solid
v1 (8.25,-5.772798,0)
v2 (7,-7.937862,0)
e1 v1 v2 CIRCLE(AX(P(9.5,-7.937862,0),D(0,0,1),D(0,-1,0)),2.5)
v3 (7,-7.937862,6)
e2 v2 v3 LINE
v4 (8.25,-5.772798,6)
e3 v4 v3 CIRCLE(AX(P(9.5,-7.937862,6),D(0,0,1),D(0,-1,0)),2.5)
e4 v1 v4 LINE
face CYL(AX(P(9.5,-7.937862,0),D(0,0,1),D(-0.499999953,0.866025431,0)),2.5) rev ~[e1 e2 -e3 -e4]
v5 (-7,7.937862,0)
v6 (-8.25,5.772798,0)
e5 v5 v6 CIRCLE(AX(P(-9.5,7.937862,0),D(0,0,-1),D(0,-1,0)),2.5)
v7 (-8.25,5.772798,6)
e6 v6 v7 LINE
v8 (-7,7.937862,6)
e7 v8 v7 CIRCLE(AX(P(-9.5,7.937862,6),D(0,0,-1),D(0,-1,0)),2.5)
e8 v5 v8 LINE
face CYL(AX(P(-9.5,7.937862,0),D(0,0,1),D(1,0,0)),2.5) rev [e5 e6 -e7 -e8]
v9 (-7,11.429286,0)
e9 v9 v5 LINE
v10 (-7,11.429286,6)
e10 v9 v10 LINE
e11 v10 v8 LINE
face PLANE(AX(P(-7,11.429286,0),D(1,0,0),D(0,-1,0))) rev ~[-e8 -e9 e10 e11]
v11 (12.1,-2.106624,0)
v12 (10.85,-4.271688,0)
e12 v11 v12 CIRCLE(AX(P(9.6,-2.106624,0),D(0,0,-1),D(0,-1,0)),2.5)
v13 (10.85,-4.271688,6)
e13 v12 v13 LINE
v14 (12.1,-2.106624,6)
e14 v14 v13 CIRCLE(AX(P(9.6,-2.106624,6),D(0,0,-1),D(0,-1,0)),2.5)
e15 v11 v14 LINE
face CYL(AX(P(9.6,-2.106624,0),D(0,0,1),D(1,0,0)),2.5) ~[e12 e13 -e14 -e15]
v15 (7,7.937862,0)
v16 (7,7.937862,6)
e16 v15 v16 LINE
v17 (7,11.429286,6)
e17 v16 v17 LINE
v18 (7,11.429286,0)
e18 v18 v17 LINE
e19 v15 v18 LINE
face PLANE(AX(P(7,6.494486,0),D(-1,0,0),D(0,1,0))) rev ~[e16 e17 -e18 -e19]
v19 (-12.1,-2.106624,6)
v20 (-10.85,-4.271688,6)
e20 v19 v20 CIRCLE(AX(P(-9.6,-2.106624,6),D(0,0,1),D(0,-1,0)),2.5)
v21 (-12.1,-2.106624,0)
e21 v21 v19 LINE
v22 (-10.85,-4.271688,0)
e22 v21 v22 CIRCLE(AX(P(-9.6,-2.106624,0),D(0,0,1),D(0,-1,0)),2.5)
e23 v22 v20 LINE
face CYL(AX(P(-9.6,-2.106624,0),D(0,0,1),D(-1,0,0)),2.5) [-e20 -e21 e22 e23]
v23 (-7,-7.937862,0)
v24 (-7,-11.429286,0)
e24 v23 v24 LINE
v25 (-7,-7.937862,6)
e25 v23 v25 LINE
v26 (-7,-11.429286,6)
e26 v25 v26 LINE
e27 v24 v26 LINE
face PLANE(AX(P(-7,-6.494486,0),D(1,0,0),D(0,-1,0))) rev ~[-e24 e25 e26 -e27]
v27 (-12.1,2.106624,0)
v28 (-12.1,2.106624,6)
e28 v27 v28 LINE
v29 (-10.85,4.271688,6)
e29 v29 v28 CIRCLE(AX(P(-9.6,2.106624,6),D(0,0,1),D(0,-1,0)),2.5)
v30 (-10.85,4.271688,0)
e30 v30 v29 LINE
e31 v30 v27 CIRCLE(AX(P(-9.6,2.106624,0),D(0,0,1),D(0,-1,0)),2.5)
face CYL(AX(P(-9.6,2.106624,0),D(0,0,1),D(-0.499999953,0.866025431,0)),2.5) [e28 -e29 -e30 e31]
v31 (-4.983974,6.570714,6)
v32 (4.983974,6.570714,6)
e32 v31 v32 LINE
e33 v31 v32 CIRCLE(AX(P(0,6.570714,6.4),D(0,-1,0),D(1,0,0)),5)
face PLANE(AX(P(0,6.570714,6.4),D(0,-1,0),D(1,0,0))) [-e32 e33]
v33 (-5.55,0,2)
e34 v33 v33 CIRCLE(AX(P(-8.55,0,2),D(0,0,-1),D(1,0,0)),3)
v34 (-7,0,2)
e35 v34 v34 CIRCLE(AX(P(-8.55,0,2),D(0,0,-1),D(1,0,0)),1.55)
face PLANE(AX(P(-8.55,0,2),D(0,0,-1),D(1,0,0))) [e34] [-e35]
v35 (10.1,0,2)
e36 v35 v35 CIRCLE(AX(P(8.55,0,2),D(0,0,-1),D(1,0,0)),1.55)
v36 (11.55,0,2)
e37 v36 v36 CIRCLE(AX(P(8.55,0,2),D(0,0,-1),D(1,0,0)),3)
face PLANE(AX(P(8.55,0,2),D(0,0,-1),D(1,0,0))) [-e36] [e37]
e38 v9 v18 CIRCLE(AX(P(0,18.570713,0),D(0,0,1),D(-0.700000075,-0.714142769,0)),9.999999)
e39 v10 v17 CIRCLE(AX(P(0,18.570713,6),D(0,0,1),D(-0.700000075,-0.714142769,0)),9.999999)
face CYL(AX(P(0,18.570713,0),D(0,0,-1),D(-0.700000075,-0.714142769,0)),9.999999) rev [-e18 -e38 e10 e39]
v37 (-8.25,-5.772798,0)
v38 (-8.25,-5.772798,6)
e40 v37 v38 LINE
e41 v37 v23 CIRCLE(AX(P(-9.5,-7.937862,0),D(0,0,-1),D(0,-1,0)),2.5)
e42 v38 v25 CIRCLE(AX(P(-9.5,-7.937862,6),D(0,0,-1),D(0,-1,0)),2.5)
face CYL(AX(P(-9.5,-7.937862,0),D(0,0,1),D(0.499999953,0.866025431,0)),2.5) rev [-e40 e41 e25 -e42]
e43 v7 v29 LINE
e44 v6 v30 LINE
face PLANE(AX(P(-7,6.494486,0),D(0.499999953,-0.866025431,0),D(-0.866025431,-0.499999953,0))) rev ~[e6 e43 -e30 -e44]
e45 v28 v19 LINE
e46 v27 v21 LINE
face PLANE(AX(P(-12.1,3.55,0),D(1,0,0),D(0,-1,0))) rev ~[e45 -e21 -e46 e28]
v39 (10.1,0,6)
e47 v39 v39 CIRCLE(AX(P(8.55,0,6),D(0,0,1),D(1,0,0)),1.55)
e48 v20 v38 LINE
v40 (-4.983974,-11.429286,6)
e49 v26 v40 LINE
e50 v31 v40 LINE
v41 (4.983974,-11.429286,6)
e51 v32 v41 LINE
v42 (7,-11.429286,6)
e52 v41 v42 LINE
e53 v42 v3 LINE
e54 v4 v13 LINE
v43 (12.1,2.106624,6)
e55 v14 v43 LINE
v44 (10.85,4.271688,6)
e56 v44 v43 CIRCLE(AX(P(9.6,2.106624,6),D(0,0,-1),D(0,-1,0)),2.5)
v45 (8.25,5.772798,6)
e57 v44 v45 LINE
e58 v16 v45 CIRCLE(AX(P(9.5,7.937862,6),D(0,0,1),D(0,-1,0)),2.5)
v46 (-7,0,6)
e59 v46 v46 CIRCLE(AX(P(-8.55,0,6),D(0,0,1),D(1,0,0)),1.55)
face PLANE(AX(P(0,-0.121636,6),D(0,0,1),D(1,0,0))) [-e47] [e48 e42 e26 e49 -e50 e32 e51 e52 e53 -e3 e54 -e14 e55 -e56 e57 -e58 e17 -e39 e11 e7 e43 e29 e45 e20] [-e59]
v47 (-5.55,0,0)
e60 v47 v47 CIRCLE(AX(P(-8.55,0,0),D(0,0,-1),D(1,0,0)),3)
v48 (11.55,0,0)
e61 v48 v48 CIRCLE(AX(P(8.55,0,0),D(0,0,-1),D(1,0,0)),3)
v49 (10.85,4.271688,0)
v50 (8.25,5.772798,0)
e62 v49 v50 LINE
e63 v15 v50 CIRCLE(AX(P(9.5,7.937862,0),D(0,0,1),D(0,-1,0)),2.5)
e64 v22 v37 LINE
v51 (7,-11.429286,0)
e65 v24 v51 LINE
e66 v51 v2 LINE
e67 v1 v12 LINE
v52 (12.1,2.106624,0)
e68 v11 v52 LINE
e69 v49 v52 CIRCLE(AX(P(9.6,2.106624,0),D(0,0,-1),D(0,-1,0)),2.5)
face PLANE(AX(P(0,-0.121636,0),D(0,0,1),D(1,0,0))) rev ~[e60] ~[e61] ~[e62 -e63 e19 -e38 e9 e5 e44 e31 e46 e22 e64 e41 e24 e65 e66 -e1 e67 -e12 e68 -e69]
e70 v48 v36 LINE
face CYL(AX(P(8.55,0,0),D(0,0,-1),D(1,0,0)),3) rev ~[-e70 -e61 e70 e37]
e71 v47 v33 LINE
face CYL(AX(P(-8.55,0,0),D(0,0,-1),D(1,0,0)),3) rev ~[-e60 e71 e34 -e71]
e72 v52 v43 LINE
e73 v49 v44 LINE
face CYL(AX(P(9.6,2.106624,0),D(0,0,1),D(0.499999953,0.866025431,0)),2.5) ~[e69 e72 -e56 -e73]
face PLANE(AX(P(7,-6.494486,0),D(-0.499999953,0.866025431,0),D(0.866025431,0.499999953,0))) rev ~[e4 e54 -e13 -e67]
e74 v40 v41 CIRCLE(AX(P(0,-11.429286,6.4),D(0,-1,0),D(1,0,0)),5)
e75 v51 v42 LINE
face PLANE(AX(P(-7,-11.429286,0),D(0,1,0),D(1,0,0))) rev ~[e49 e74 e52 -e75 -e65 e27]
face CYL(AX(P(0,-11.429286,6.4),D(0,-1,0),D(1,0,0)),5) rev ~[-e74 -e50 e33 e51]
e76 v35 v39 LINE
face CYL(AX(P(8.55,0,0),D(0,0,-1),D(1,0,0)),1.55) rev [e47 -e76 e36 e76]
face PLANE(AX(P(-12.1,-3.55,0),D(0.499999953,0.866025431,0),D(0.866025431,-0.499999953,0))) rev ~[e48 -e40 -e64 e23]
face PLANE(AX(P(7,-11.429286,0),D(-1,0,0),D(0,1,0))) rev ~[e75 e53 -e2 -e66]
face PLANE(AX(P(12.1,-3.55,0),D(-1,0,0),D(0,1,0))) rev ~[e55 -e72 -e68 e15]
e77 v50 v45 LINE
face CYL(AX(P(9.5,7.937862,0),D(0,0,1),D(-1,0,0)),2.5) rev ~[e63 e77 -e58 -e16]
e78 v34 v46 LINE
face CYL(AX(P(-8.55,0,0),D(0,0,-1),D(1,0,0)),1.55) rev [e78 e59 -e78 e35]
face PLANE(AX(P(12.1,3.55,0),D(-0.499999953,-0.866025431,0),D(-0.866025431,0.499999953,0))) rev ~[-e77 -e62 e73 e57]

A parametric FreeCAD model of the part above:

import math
import FreeCAD as App
import Part
import Sketcher
Q = App.Units.Quantity


def edges_at(feature, points):
    """Names of the edges that pass closest to the given points."""
    edges = feature.Shape.Edges
    near = lambda p: min(range(len(edges)), key=lambda i: edges[i].distToShape(Part.Vertex(*p))[0])
    return sorted({f"Edge{near(p) + 1}" for p in points})

doc = App.newDocument("Part")
body = doc.addObject("PartDesign::Body", "Body")

# Sketch on XY plane
sketch1 = body.newObject("Sketcher::SketchObject", "Sketch")
sketch1.AttachmentSupport = (doc.getObject("XY_Plane"), [""])
sketch1.MapMode = "FlatFace"
sketch1.addGeometry(Part.LineSegment(App.Vector(-7, 11.4, 0), App.Vector(-7, 6.5, 0)), False)
sketch1.addGeometry(Part.LineSegment(App.Vector(-7, 6.5, 0), App.Vector(-12.1, 3.5, 0)), False)
sketch1.addGeometry(Part.LineSegment(App.Vector(-12.1, 3.5, 0), App.Vector(-12.1, -3.5, 0)), False)
sketch1.addGeometry(Part.LineSegment(App.Vector(-12.1, -3.5, 0), App.Vector(-7, -6.5, 0)), False)
sketch1.addGeometry(Part.LineSegment(App.Vector(-7, -6.5, 0), App.Vector(-7, -11.4, 0)), False)
sketch1.addGeometry(Part.LineSegment(App.Vector(-7, -11.4, 0), App.Vector(7, -11.4, 0)), False)
sketch1.addGeometry(Part.LineSegment(App.Vector(7, -11.4, 0), App.Vector(7, -6.5, 0)), False)
sketch1.addGeometry(Part.LineSegment(App.Vector(7, -6.5, 0), App.Vector(12.1, -3.5, 0)), False)
sketch1.addGeometry(Part.LineSegment(App.Vector(12.1, -3.5, 0), App.Vector(12.1, 3.5, 0)), False)
sketch1.addGeometry(Part.LineSegment(App.Vector(12.1, 3.5, 0), App.Vector(7, 6.5, 0)), False)
sketch1.addGeometry(Part.LineSegment(App.Vector(7, 6.5, 0), App.Vector(7, 11.4, 0)), False)
sketch1.addGeometry(Part.ArcOfCircle(Part.Circle(App.Vector(0, 18.6, 0), App.Vector(0, 0, 1), 10), math.radians(-134), math.radians(-46)), False)
sketch1.addGeometry(Part.Circle(App.Vector(-8.6, 0, 0), App.Vector(0, 0, 1), 1.6), False)
sketch1.addGeometry(Part.Circle(App.Vector(8.6, 0, 0), App.Vector(0, 0, 1), 1.6), False)
sketch1.addConstraint(Sketcher.Constraint("Coincident", 0, 2, 1, 1))
sketch1.addConstraint(Sketcher.Constraint("Coincident", 1, 2, 2, 1))
sketch1.addConstraint(Sketcher.Constraint("Coincident", 2, 2, 3, 1))
sketch1.addConstraint(Sketcher.Constraint("Coincident", 3, 2, 4, 1))
sketch1.addConstraint(Sketcher.Constraint("Coincident", 4, 2, 5, 1))
sketch1.addConstraint(Sketcher.Constraint("Coincident", 5, 2, 6, 1))
sketch1.addConstraint(Sketcher.Constraint("Coincident", 6, 2, 7, 1))
sketch1.addConstraint(Sketcher.Constraint("Coincident", 7, 2, 8, 1))
sketch1.addConstraint(Sketcher.Constraint("Coincident", 8, 2, 9, 1))
sketch1.addConstraint(Sketcher.Constraint("Coincident", 9, 2, 10, 1))
sketch1.addConstraint(Sketcher.Constraint("Coincident", 10, 2, 11, 2))
sketch1.addConstraint(Sketcher.Constraint("Coincident", 11, 1, 0, 1))
sketch1.addConstraint(Sketcher.Constraint("Vertical", 0))
sketch1.addConstraint(Sketcher.Constraint("Vertical", 2))
sketch1.addConstraint(Sketcher.Constraint("Vertical", 4))
sketch1.addConstraint(Sketcher.Constraint("Horizontal", 5))
sketch1.addConstraint(Sketcher.Constraint("Vertical", 6))
sketch1.addConstraint(Sketcher.Constraint("Vertical", 8))
sketch1.addConstraint(Sketcher.Constraint("Vertical", 10))
sketch1.addConstraint(Sketcher.Constraint("Equal", 12, 13))
sketch1.addConstraint(Sketcher.Constraint("Symmetric", 12, 3, 13, 3, -1, 1))
sketch1.addConstraint(Sketcher.Constraint("Symmetric", 0, 2, 6, 2, -1, 1))
sketch1.addConstraint(Sketcher.Constraint("Symmetric", 1, 2, 7, 2, -1, 1))
sketch1.addConstraint(Sketcher.Constraint("Symmetric", 3, 2, 9, 2, -1, 1))
sketch1.addConstraint(Sketcher.Constraint("Symmetric", 3, 2, 6, 2, -2))
sketch1.addConstraint(Sketcher.Constraint("PointOnObject", 11, 3, -2))
sketch1.addConstraint(Sketcher.Constraint("PointOnObject", 12, 3, -1))
sketch1.addConstraint(Sketcher.Constraint("Parallel", 3, 9))
sketch1.addConstraint(Sketcher.Constraint("Horizontal", 2, 2, 7, 2))
sketch1.addConstraint(Sketcher.Constraint("Equal", 0, 4))
sketch1.addConstraint(Sketcher.Constraint("Radius", 11, 9.999999))
sketch1.addConstraint(Sketcher.Constraint("Diameter", 12, 3.1))
sketch1.addConstraint(Sketcher.Constraint("DistanceX", 5, 1, 5, 2, 14.0))
sketch1.addConstraint(Sketcher.Constraint("Angle", 1, Q("-150.000003 deg")))
sketch1.addConstraint(Sketcher.Constraint("DistanceY", 2, 2, 2, 1, 7.1))
sketch1.addConstraint(Sketcher.Constraint("DistanceX", 1, 2, -1, 1, 12.1))
sketch1.addConstraint(Sketcher.Constraint("DistanceX", 12, 3, 13, 3, 17.1))
sketch1.addConstraint(Sketcher.Constraint("DistanceY", 0, 2, 0, 1, 4.9348))
pad1 = body.newObject("PartDesign::Pad", "Pad")
pad1.Profile = sketch1
pad1.Length = 6

# Sketch on XZ plane
sketch2 = body.newObject("Sketcher::SketchObject", "Sketch001")
sketch2.AttachmentSupport = (doc.getObject("XZ_Plane"), [""])
sketch2.MapMode = "FlatFace"
sketch2.AttachmentOffset = App.Placement(App.Vector(0, 0, 11.429286), App.Rotation())
sketch2.addGeometry(Part.Circle(App.Vector(0, 6, 0), App.Vector(0, 0, 1), 5), False)
sketch2.addConstraint(Sketcher.Constraint("PointOnObject", 0, 3, -2))
sketch2.addConstraint(Sketcher.Constraint("Diameter", 0, 10.0))
sketch2.addConstraint(Sketcher.Constraint("DistanceY", -1, 1, 0, 3, 6.4))
pocket1 = body.newObject("PartDesign::Pocket", "Pocket")
pocket1.Profile = sketch2
pocket1.Length = 18
doc.recompute()

fillet = body.newObject("PartDesign::Fillet", "Fillet")
fillet.Base = (pocket1, edges_at(pocket1, [
    (-7, 6.494, 3),
    (-12.1, 3.55, 3),
    (7, 6.494, 3),
    (-12.1, -3.55, 3),
    (-7, -6.494, 3),
    (7, -6.494, 3),
    (12.1, -3.55, 3),
    (12.1, 3.55, 3),
]))
fillet.Radius = 2.5

# Sketch on XY plane
sketch3 = body.newObject("Sketcher::SketchObject", "Sketch002")
sketch3.AttachmentSupport = (doc.getObject("XY_Plane"), [""])
sketch3.MapMode = "FlatFace"
sketch3.addGeometry(Part.Circle(App.Vector(-8.6, 0, 0), App.Vector(0, 0, 1), 3), False)
sketch3.addGeometry(Part.Circle(App.Vector(8.6, 0, 0), App.Vector(0, 0, 1), 3), False)
sketch3.addConstraint(Sketcher.Constraint("Equal", 0, 1))
sketch3.addConstraint(Sketcher.Constraint("Symmetric", 0, 3, 1, 3, -1, 1))
sketch3.addConstraint(Sketcher.Constraint("PointOnObject", 0, 3, -1))
sketch3.addConstraint(Sketcher.Constraint("Diameter", 0, 6.0))
sketch3.addConstraint(Sketcher.Constraint("DistanceX", 0, 3, 1, 3, 17.1))
pocket2 = body.newObject("PartDesign::Pocket", "Pocket001")
pocket2.Profile = sketch3
pocket2.Length = 2
pocket2.Reversed = True

doc.recompute()
